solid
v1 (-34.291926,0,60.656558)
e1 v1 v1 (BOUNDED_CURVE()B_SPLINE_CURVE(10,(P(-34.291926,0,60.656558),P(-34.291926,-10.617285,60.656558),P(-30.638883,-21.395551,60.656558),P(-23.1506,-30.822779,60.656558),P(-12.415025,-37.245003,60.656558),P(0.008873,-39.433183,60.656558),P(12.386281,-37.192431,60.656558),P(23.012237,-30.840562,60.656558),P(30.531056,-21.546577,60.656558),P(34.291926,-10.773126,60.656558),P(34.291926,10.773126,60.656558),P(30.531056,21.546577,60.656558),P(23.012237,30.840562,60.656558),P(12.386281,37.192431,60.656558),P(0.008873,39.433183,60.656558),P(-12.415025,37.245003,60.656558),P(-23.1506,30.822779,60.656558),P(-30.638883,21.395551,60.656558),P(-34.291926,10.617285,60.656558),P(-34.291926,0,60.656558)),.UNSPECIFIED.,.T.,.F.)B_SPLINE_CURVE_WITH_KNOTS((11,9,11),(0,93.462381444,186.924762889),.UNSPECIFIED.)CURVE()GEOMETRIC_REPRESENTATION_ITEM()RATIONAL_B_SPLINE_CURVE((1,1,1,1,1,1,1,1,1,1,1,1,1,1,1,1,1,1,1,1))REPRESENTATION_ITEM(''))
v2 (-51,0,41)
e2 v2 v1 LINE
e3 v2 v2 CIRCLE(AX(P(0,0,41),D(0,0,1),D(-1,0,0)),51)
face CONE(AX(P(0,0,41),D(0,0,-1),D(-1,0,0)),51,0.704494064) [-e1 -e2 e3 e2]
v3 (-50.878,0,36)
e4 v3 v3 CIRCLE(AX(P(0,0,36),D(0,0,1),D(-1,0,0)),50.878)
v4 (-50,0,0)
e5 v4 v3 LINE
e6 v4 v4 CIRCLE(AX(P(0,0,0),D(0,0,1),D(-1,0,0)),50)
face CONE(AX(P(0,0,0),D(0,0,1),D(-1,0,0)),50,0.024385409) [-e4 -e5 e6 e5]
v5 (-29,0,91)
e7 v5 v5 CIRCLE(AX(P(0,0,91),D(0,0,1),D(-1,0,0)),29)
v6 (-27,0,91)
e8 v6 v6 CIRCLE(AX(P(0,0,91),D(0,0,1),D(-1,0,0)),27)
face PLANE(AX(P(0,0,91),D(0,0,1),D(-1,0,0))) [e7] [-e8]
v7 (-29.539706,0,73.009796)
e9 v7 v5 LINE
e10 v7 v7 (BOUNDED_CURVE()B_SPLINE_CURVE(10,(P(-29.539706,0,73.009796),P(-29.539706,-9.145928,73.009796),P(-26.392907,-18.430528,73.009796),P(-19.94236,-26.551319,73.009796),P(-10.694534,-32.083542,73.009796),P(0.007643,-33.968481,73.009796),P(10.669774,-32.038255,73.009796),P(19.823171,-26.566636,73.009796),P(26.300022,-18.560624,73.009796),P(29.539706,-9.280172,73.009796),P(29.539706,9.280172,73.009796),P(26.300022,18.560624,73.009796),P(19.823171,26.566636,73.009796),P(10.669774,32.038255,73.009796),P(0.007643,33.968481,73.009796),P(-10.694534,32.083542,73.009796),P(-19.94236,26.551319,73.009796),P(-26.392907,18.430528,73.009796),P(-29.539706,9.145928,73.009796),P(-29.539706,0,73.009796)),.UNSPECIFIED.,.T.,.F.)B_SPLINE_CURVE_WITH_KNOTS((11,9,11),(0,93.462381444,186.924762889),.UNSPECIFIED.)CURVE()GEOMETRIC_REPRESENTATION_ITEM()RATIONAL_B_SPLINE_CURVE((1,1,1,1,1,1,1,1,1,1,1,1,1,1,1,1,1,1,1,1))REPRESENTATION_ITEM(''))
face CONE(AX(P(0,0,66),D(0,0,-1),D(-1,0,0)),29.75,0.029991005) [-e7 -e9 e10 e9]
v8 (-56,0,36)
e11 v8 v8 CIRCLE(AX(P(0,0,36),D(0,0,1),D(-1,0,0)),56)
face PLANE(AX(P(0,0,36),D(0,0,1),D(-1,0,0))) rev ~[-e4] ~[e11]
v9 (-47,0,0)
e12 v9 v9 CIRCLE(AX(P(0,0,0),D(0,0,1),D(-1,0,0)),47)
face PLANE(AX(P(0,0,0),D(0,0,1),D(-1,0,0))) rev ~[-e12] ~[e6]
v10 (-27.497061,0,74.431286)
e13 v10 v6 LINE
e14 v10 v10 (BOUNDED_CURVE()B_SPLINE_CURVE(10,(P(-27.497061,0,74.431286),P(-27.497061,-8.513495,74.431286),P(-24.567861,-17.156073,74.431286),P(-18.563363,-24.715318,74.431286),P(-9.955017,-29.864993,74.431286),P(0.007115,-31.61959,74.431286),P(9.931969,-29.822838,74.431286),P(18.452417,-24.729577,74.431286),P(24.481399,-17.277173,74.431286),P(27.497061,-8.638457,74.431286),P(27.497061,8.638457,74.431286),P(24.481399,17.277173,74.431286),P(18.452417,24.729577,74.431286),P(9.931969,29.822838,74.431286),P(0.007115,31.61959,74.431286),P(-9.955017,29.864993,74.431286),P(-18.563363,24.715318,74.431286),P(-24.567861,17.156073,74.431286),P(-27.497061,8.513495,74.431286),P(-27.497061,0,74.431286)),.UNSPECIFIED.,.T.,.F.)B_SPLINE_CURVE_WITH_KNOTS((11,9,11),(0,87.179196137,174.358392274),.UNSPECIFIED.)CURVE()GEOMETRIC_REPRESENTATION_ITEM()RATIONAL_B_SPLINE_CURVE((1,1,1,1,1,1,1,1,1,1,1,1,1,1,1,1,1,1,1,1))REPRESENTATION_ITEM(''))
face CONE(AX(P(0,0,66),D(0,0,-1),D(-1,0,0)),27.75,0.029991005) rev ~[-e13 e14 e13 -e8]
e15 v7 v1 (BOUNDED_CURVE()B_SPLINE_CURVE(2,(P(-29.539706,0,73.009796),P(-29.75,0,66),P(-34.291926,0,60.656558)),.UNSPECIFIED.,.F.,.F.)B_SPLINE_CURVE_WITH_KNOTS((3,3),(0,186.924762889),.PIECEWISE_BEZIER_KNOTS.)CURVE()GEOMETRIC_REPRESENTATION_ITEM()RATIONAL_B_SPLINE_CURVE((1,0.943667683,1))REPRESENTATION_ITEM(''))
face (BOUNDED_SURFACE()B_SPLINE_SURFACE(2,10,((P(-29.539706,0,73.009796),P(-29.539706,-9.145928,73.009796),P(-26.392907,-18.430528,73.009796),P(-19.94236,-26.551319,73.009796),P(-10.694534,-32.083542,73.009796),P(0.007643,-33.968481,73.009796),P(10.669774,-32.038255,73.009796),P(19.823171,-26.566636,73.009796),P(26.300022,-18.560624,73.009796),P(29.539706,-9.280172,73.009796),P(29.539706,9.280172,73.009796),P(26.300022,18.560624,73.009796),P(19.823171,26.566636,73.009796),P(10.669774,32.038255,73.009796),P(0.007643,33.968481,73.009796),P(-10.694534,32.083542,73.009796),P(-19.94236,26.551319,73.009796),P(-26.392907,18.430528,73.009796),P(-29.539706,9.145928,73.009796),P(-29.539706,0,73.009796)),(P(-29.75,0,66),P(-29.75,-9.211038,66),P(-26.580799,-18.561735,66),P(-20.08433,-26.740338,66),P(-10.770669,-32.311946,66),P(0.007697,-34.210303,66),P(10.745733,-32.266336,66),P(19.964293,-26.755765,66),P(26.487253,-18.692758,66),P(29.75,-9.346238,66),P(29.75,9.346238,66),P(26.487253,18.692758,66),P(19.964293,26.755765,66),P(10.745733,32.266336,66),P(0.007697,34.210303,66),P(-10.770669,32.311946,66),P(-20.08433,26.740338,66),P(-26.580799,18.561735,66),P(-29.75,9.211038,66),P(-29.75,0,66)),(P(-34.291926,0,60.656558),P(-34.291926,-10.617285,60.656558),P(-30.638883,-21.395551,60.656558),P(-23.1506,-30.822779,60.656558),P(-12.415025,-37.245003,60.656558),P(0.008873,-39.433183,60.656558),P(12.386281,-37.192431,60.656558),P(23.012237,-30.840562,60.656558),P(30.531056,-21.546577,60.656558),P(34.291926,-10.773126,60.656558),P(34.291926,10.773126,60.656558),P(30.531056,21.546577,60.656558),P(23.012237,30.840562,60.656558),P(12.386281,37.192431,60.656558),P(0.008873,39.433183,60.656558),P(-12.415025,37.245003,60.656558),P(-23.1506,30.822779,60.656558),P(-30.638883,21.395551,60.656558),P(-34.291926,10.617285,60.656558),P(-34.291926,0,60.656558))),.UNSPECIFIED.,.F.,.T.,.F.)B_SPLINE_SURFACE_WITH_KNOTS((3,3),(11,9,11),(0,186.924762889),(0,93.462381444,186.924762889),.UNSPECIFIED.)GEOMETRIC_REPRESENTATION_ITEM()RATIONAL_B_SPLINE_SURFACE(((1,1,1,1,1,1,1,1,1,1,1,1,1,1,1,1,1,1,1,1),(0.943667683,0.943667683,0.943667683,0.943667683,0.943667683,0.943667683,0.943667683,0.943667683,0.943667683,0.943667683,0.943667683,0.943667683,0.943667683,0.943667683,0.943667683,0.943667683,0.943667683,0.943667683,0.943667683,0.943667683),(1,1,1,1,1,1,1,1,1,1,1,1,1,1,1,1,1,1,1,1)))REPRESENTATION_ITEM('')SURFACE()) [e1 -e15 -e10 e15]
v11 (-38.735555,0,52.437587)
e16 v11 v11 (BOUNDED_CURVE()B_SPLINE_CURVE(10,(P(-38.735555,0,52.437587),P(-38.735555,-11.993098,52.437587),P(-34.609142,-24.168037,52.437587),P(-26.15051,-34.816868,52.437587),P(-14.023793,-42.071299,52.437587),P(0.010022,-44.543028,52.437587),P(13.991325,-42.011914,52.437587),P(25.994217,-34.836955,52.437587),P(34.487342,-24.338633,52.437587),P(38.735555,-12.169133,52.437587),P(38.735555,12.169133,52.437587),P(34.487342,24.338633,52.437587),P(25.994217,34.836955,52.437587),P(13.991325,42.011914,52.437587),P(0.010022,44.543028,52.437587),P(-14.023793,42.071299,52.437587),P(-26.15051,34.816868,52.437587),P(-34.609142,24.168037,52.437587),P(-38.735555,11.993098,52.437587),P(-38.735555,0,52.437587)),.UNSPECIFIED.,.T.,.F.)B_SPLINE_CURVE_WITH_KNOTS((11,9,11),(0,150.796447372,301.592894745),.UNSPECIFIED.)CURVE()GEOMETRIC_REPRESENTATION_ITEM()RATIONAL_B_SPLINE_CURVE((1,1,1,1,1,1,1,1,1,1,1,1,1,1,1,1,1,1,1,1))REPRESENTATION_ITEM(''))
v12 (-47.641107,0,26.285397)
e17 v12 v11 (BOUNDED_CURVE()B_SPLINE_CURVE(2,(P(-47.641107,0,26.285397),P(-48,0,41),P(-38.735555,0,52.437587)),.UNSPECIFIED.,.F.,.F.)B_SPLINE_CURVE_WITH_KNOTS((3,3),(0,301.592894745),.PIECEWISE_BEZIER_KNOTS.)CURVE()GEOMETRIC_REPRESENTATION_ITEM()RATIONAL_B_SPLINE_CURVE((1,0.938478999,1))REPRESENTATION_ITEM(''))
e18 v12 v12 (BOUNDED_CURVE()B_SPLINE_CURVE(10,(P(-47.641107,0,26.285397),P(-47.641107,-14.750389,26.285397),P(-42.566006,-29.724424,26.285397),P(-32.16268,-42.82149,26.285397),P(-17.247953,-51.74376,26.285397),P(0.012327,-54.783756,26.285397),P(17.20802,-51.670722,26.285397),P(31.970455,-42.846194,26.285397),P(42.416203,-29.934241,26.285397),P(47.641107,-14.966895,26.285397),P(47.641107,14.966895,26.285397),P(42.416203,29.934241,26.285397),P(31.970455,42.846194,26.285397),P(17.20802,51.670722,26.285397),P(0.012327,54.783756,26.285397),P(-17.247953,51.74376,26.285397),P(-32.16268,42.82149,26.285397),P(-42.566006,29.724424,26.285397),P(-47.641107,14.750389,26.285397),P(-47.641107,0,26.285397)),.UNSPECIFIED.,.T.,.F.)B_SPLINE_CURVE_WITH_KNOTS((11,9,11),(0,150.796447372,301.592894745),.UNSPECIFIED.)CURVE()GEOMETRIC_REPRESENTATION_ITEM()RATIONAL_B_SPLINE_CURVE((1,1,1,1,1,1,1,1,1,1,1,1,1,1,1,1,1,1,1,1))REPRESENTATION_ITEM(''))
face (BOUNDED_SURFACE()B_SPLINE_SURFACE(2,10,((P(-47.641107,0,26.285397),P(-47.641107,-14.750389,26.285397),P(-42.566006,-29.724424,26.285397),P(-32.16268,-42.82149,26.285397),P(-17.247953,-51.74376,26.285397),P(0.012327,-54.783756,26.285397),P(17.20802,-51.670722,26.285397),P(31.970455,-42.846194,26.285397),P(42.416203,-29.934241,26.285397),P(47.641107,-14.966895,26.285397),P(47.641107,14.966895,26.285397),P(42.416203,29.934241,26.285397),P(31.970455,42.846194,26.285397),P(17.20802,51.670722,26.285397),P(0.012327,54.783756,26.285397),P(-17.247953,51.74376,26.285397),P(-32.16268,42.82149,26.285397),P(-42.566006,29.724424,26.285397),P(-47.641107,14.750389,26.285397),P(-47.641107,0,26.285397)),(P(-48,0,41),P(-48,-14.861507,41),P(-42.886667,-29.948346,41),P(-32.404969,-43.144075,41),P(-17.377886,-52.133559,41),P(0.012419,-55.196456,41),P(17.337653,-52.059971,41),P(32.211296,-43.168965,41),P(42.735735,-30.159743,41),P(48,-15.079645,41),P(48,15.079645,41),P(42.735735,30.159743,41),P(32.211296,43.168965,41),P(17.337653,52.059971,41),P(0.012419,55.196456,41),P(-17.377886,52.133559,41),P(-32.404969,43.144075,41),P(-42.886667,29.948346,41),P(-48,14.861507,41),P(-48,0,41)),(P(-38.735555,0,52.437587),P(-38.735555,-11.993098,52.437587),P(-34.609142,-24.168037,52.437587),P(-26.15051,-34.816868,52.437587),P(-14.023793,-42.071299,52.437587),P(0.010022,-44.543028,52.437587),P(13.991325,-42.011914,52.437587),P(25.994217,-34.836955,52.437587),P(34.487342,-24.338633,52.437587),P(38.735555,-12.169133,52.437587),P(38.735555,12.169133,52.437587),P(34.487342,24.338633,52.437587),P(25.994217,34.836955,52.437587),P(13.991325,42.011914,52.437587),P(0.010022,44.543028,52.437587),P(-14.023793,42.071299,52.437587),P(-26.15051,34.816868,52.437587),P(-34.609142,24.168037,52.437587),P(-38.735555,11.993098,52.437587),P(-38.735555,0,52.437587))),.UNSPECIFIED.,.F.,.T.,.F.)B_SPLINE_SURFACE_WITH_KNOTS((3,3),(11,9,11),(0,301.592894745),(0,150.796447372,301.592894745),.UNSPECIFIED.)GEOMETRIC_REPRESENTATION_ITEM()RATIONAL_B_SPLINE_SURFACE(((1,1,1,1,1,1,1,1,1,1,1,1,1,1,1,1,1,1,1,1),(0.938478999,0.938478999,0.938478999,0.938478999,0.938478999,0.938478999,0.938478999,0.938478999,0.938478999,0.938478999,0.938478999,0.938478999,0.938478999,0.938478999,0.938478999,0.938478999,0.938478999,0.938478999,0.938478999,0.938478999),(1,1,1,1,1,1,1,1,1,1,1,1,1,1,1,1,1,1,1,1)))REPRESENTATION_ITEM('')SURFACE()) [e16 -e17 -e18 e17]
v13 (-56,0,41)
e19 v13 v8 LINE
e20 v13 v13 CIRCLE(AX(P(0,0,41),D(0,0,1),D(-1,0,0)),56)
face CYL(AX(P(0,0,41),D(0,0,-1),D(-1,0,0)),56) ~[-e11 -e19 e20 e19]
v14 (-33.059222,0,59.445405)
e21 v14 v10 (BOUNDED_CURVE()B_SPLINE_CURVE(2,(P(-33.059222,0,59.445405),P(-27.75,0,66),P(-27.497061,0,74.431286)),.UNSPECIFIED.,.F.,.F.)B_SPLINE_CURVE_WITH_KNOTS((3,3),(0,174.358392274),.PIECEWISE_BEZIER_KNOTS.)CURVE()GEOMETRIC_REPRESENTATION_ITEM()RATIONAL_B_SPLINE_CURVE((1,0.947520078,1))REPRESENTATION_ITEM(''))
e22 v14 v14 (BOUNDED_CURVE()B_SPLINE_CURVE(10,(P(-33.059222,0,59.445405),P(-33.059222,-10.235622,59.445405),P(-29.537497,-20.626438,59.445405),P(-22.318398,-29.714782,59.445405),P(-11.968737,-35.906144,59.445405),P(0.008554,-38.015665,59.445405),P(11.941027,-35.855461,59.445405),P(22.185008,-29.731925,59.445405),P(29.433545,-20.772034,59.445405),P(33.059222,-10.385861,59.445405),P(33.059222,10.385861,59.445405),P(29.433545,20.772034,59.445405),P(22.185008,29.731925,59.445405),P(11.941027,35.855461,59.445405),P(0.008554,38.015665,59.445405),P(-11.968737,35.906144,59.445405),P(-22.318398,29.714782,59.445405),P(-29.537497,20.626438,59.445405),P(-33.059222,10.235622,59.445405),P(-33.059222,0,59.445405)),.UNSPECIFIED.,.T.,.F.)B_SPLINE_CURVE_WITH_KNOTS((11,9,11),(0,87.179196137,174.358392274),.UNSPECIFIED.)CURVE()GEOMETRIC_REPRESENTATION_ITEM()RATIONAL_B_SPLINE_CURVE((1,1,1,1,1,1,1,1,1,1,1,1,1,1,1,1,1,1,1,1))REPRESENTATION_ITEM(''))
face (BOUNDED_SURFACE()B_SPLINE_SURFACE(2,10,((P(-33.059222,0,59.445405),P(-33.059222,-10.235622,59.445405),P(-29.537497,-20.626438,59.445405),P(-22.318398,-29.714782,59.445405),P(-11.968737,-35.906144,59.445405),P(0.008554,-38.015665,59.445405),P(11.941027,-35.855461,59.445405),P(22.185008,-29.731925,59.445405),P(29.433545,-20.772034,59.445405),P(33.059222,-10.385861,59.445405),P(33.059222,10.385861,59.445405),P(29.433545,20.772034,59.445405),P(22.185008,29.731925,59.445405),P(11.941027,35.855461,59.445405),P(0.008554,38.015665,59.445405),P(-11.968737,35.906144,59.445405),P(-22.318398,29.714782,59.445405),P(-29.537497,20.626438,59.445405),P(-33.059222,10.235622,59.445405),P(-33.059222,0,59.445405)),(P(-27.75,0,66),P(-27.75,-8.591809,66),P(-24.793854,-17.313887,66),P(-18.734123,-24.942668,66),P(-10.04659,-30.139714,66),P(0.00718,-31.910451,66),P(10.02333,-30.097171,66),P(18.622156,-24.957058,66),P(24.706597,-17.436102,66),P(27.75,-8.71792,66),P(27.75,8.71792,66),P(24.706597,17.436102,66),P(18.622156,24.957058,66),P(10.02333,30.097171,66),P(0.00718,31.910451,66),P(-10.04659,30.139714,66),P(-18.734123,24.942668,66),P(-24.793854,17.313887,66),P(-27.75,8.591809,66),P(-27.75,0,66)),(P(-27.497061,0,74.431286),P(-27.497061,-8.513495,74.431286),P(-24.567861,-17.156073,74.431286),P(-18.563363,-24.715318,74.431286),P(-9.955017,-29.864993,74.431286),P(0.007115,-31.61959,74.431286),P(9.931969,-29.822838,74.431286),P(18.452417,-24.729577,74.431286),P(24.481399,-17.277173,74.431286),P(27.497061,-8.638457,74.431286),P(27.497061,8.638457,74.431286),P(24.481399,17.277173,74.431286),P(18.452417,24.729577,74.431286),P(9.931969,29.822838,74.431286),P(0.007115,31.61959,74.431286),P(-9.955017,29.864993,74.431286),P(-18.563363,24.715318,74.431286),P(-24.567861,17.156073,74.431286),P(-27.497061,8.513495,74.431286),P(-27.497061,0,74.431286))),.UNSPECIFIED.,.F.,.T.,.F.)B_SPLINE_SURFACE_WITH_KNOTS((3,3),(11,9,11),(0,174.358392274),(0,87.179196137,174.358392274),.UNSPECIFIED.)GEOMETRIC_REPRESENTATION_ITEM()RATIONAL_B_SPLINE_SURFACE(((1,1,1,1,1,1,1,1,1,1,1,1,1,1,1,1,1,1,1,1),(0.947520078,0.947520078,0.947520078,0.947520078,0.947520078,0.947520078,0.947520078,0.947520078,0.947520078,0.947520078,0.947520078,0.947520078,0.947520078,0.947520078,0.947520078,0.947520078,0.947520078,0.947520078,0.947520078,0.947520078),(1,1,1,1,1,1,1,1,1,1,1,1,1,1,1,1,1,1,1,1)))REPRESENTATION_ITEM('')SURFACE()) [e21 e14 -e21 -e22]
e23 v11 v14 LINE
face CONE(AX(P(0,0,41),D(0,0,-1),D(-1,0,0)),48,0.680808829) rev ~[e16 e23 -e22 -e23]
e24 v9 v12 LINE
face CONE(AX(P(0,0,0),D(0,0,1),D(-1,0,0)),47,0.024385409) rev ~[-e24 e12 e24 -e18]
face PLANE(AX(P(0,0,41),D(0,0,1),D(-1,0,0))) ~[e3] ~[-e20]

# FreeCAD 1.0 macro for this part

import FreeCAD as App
import Part
import Sketcher


def edges_at(feature, points):
    """Names of the edges that pass closest to the given points."""
    edges = feature.Shape.Edges
    near = lambda p: min(range(len(edges)), key=lambda i: edges[i].distToShape(Part.Vertex(*p))[0])
    return sorted({f"Edge{near(p) + 1}" for p in points})


def add_polygon(sketch, points):
    """Adds a closed chain of lines whose ends are joined by coincident constraints."""
    first, n = sketch.GeometryCount, len(points)
    for a, b in zip(points, points[1:] + points[:1]):
        sketch.addGeometry(Part.LineSegment(App.Vector(*a, 0), App.Vector(*b, 0)), False)
    for i in range(n):
        sketch.addConstraint(Sketcher.Constraint("Coincident", first + i, 2, first + (i + 1) % n, 1))

doc = App.newDocument("Part")
params = doc.addObject("Spreadsheet::Sheet", "Params")
for row, (alias, value) in enumerate([
    ("sketch1_width", "5 mm"),
    ("sketch1_width2", "3 mm"),
    ("sketch1_width3", "2 mm"),
    ("revolution_angle", "360 deg"),
    ("fillet_radius", "40 mm"),
    ("fillet2_radius", "25 mm"),
    ("fillet3_radius", "20 mm"),
], start=1):
    params.set(f"A{row}", alias)
    params.set(f"B{row}", "=" + value)
    params.setAlias(f"B{row}", alias)

body = doc.addObject("PartDesign::Body", "Body")

sketch1 = body.newObject("Sketcher::SketchObject", "Sketch")
sketch1.AttachmentSupport = (doc.getObject("XZ_Plane"), [""])
sketch1.MapMode = "FlatFace"
add_polygon(sketch1, [(-47, 0), (-50, 0), (-50.9, 36), (-56, 36), (-56, 41), (-51, 41), (-29.8, 66), (-29, 91), (-27, 91), (-27.8, 66), (-48, 41)])
sketch1.addConstraint([
    Sketcher.Constraint("Horizontal", 0),
    Sketcher.Constraint("Horizontal", 2),
    Sketcher.Constraint("Vertical", 3),
    Sketcher.Constraint("Horizontal", 4),
    Sketcher.Constraint("Horizontal", 7),
    Sketcher.Constraint("PointOnObject", 0, 2, -1),
    Sketcher.Constraint("Parallel", 6, 8),
    Sketcher.Constraint("Parallel", 1, 10),
    Sketcher.Constraint("Horizontal", 5, 2, 8, 2),
    Sketcher.Constraint("Horizontal", 4, 2, 9, 2),
    Sketcher.Constraint("Equal", 4, 3),
    Sketcher.Constraint("DistanceX", 4, 1, 4, 2, 5.0),
    Sketcher.Constraint("DistanceX", 0, 2, 0, 1, 3.0),
    Sketcher.Constraint("DistanceX", 7, 1, 7, 2, 2.0),
    Sketcher.Constraint("DistanceX", 0, 2, -1, 1, 50.0),
    Sketcher.Constraint("DistanceY", -1, 1, 1, 2, 36.0),
    Sketcher.Constraint("DistanceX", 2, 2, -1, 1, 56.0),
    Sketcher.Constraint("DistanceY", -1, 1, 5, 2, 66.0),
    Sketcher.Constraint("DistanceX", 6, 2, -1, 1, 29.0),
    Sketcher.Constraint("DistanceY", -1, 1, 6, 2, 91.0),
    Sketcher.Constraint("DistanceX", 9, 2, -1, 1, 48.0),
    Sketcher.Constraint("DistanceX", 5, 2, -1, 1, 29.75),
])
sketch1.setExpression("Constraints[22]", "Params.sketch1_width")
sketch1.setExpression("Constraints[23]", "Params.sketch1_width2")
sketch1.setExpression("Constraints[24]", "Params.sketch1_width3")
revolution = body.newObject("PartDesign::Revolution", "Revolution")
revolution.Profile = sketch1
revolution.ReferenceAxis = (sketch1, ["V_Axis"])
revolution.setExpression("Angle", "Params.revolution_angle")
doc.recompute()

fillet = body.newObject("PartDesign::Fillet", "Fillet")
fillet.Base = (revolution, edges_at(revolution, [(-44.752, 17.358, 41)]))
fillet.setExpression("Radius", "Params.fillet_radius")
doc.recompute()

fillet2 = body.newObject("PartDesign::Fillet", "Fillet001")
fillet2.Base = (fillet, edges_at(fillet, [(-25.872, 10.035, 66)]))
fillet2.setExpression("Radius", "Params.fillet2_radius")
doc.recompute()

fillet3 = body.newObject("PartDesign::Fillet", "Fillet002")
fillet3.Base = (fillet2, edges_at(fillet2, [(-27.737, 10.758, 66)]))
fillet3.setExpression("Radius", "Params.fillet3_radius")

doc.recompute()
